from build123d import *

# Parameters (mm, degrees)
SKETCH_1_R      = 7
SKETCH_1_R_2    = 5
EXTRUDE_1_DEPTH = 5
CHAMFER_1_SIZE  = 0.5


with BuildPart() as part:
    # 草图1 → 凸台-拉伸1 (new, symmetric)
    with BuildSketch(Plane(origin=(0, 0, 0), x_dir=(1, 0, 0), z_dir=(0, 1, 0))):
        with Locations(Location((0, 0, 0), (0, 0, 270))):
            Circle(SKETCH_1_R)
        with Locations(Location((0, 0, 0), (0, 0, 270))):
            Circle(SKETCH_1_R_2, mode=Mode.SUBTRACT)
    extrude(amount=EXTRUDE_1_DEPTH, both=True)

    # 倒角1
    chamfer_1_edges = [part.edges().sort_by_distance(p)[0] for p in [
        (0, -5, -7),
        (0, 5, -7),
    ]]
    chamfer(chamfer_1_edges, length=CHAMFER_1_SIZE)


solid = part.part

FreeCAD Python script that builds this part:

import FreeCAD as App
import Part
import Sketcher
from FreeCAD import Vector


def edges_at(feature, points):
    """Names of the edges that pass closest to the given points."""
    edges = feature.Shape.Edges
    near = lambda p: min(range(len(edges)), key=lambda i: edges[i].distToShape(Part.Vertex(*p))[0])
    return sorted({f"Edge{near(p) + 1}" for p in points})

doc = App.newDocument("Part")
body = doc.addObject("PartDesign::Body", "Body")

# Sketch on XZ plane
sketch1 = body.newObject("Sketcher::SketchObject", "Sketch")
sketch1.AttachmentSupport = (doc.getObject("XZ_Plane"), [""])
sketch1.MapMode = "FlatFace"
sketch1.addGeometry([
    Part.Circle(Vector(0, 0, 0), Vector(0, 0, 1), 7),
    Part.Circle(Vector(0, 0, 0), Vector(0, 0, 1), 5),
], False)
sketch1.addConstraint([
    Sketcher.Constraint("Coincident", 0, 3, -1, 1),
    Sketcher.Constraint("Coincident", 1, 3, -1, 1),
    Sketcher.Constraint("Diameter", 0, 14.0),
    Sketcher.Constraint("Diameter", 1, 10.0),
])
pad1 = body.newObject("PartDesign::Pad", "Pad")
pad1.Profile = sketch1
pad1.Length = 10
pad1.Midplane = True
doc.recompute()

chamfer = body.newObject("PartDesign::Chamfer", "Chamfer")
chamfer.Base = (pad1, edges_at(pad1, [(0, -5, -7), (0, 5, -7)]))
chamfer.Size = 0.5

doc.recompute()
